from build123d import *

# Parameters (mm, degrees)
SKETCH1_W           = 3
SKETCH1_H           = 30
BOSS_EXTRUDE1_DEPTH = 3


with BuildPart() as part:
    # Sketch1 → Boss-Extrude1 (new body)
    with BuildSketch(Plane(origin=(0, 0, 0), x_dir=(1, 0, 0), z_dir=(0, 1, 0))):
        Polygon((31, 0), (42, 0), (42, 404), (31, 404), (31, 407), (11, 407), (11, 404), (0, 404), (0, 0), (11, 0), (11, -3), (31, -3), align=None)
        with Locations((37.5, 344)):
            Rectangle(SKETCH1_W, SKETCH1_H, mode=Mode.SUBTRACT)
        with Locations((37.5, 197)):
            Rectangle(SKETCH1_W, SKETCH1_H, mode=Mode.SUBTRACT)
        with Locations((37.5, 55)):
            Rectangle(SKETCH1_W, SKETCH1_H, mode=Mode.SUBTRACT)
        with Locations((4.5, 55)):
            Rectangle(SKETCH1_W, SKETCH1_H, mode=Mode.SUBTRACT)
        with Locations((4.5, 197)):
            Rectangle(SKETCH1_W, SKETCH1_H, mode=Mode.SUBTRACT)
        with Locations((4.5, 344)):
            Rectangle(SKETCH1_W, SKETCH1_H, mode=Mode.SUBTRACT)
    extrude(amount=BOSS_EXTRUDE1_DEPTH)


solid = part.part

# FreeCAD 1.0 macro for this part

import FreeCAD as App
import Part
import Sketcher

V = App.Vector
Q = App.Units.Quantity

doc = App.newDocument("Part")
params = doc.addObject("Spreadsheet::Sheet", "Params")
for row, (alias, value) in enumerate([
    ("sketch1_width", "11 mm"),
    ("sketch1_width2", "20 mm"),
    ("sketch1_width3", "3 mm"),
    ("sketch1_height", "404 mm"),
    ("sketch1_height2", "30 mm"),
    ("pad1_length", "3 mm"),
], start=1):
    params.set(f"A{row}", alias)
    params.set(f"B{row}", "=" + value)
    params.setAlias(f"B{row}", alias)

body = doc.addObject("PartDesign::Body", "Body")

sketch1 = doc.addObject("Sketcher::SketchObject", "Sketch")
body.addObject(sketch1)
sketch1.AttachmentSupport = (doc.XZ_Plane, [""])
sketch1.MapMode = "FlatFace"
sketch1.addGeometry(Part.LineSegment(V(31, 0, 0), V(42, 0, 0)), False)
sketch1.addGeometry(Part.LineSegment(V(42, 0, 0), V(42, -404, 0)), False)
sketch1.addGeometry(Part.LineSegment(V(42, -404, 0), V(31, -404, 0)), False)
sketch1.addGeometry(Part.LineSegment(V(31, -404, 0), V(31, -407, 0)), False)
sketch1.addGeometry(Part.LineSegment(V(31, -407, 0), V(11, -407, 0)), False)
sketch1.addGeometry(Part.LineSegment(V(11, -407, 0), V(11, -404, 0)), False)
sketch1.addGeometry(Part.LineSegment(V(11, -404, 0), V(0, -404, 0)), False)
sketch1.addGeometry(Part.LineSegment(V(0, -404, 0), V(0, 0, 0)), False)
sketch1.addGeometry(Part.LineSegment(V(0, 0, 0), V(11, 0, 0)), False)
sketch1.addGeometry(Part.LineSegment(V(11, 0, 0), V(11, 3, 0)), False)
sketch1.addGeometry(Part.LineSegment(V(11, 3, 0), V(31, 3, 0)), False)
sketch1.addGeometry(Part.LineSegment(V(31, 3, 0), V(31, 0, 0)), False)
sketch1.addGeometry(Part.LineSegment(V(6, -40, 0), V(3, -40, 0)), False)
sketch1.addGeometry(Part.LineSegment(V(3, -40, 0), V(3, -70, 0)), False)
sketch1.addGeometry(Part.LineSegment(V(3, -70, 0), V(6, -70, 0)), False)
sketch1.addGeometry(Part.LineSegment(V(6, -70, 0), V(6, -40, 0)), False)
sketch1.addGeometry(Part.LineSegment(V(6, -182, 0), V(3, -182, 0)), False)
sketch1.addGeometry(Part.LineSegment(V(3, -182, 0), V(3, -212, 0)), False)
sketch1.addGeometry(Part.LineSegment(V(3, -212, 0), V(6, -212, 0)), False)
sketch1.addGeometry(Part.LineSegment(V(6, -212, 0), V(6, -182, 0)), False)
sketch1.addGeometry(Part.LineSegment(V(39, -40, 0), V(36, -40, 0)), False)
sketch1.addGeometry(Part.LineSegment(V(36, -40, 0), V(36, -70, 0)), False)
sketch1.addGeometry(Part.LineSegment(V(36, -70, 0), V(39, -70, 0)), False)
sketch1.addGeometry(Part.LineSegment(V(39, -70, 0), V(39, -40, 0)), False)
sketch1.addGeometry(Part.LineSegment(V(39, -182, 0), V(36, -182, 0)), False)
sketch1.addGeometry(Part.LineSegment(V(36, -182, 0), V(36, -212, 0)), False)
sketch1.addGeometry(Part.LineSegment(V(36, -212, 0), V(39, -212, 0)), False)
sketch1.addGeometry(Part.LineSegment(V(39, -212, 0), V(39, -182, 0)), False)
sketch1.addGeometry(Part.LineSegment(V(6, -329, 0), V(3, -329, 0)), False)
sketch1.addGeometry(Part.LineSegment(V(3, -329, 0), V(3, -359, 0)), False)
sketch1.addGeometry(Part.LineSegment(V(3, -359, 0), V(6, -359, 0)), False)
sketch1.addGeometry(Part.LineSegment(V(6, -359, 0), V(6, -329, 0)), False)
sketch1.addGeometry(Part.LineSegment(V(39, -329, 0), V(36, -329, 0)), False)
sketch1.addGeometry(Part.LineSegment(V(36, -329, 0), V(36, -359, 0)), False)
sketch1.addGeometry(Part.LineSegment(V(36, -359, 0), V(39, -359, 0)), False)
sketch1.addGeometry(Part.LineSegment(V(39, -359, 0), V(39, -329, 0)), False)
sketch1.addConstraint(Sketcher.Constraint("Coincident", 0, 2, 1, 1))
sketch1.addConstraint(Sketcher.Constraint("Coincident", 1, 2, 2, 1))
sketch1.addConstraint(Sketcher.Constraint("Coincident", 2, 2, 3, 1))
sketch1.addConstraint(Sketcher.Constraint("Coincident", 3, 2, 4, 1))
sketch1.addConstraint(Sketcher.Constraint("Coincident", 4, 2, 5, 1))
sketch1.addConstraint(Sketcher.Constraint("Coincident", 5, 2, 6, 1))
sketch1.addConstraint(Sketcher.Constraint("Coincident", 6, 2, 7, 1))
sketch1.addConstraint(Sketcher.Constraint("Coincident", 7, 2, 8, 1))
sketch1.addConstraint(Sketcher.Constraint("Coincident", 8, 2, 9, 1))
sketch1.addConstraint(Sketcher.Constraint("Coincident", 9, 2, 10, 1))
sketch1.addConstraint(Sketcher.Constraint("Coincident", 10, 2, 11, 1))
sketch1.addConstraint(Sketcher.Constraint("Coincident", 11, 2, 0, 1))
sketch1.addConstraint(Sketcher.Constraint("Coincident", 12, 2, 13, 1))
sketch1.addConstraint(Sketcher.Constraint("Coincident", 13, 2, 14, 1))
sketch1.addConstraint(Sketcher.Constraint("Coincident", 14, 2, 15, 1))
sketch1.addConstraint(Sketcher.Constraint("Coincident", 15, 2, 12, 1))
sketch1.addConstraint(Sketcher.Constraint("Coincident", 16, 2, 17, 1))
sketch1.addConstraint(Sketcher.Constraint("Coincident", 17, 2, 18, 1))
sketch1.addConstraint(Sketcher.Constraint("Coincident", 18, 2, 19, 1))
sketch1.addConstraint(Sketcher.Constraint("Coincident", 19, 2, 16, 1))
sketch1.addConstraint(Sketcher.Constraint("Coincident", 20, 2, 21, 1))
sketch1.addConstraint(Sketcher.Constraint("Coincident", 21, 2, 22, 1))
sketch1.addConstraint(Sketcher.Constraint("Coincident", 22, 2, 23, 1))
sketch1.addConstraint(Sketcher.Constraint("Coincident", 23, 2, 20, 1))
sketch1.addConstraint(Sketcher.Constraint("Coincident", 24, 2, 25, 1))
sketch1.addConstraint(Sketcher.Constraint("Coincident", 25, 2, 26, 1))
sketch1.addConstraint(Sketcher.Constraint("Coincident", 26, 2, 27, 1))
sketch1.addConstraint(Sketcher.Constraint("Coincident", 27, 2, 24, 1))
sketch1.addConstraint(Sketcher.Constraint("Coincident", 28, 2, 29, 1))
sketch1.addConstraint(Sketcher.Constraint("Coincident", 29, 2, 30, 1))
sketch1.addConstraint(Sketcher.Constraint("Coincident", 30, 2, 31, 1))
sketch1.addConstraint(Sketcher.Constraint("Coincident", 31, 2, 28, 1))
sketch1.addConstraint(Sketcher.Constraint("Coincident", 32, 2, 33, 1))
sketch1.addConstraint(Sketcher.Constraint("Coincident", 33, 2, 34, 1))
sketch1.addConstraint(Sketcher.Constraint("Coincident", 34, 2, 35, 1))
sketch1.addConstraint(Sketcher.Constraint("Coincident", 35, 2, 32, 1))
sketch1.addConstraint(Sketcher.Constraint("Horizontal", 0))
sketch1.addConstraint(Sketcher.Constraint("Vertical", 1))
sketch1.addConstraint(Sketcher.Constraint("Horizontal", 2))
sketch1.addConstraint(Sketcher.Constraint("Vertical", 3))
sketch1.addConstraint(Sketcher.Constraint("Horizontal", 4))
sketch1.addConstraint(Sketcher.Constraint("Vertical", 5))
sketch1.addConstraint(Sketcher.Constraint("Horizontal", 6))
sketch1.addConstraint(Sketcher.Constraint("Vertical", 7))
sketch1.addConstraint(Sketcher.Constraint("Horizontal", 8))
sketch1.addConstraint(Sketcher.Constraint("Vertical", 9))
sketch1.addConstraint(Sketcher.Constraint("Horizontal", 10))
sketch1.addConstraint(Sketcher.Constraint("Vertical", 11))
sketch1.addConstraint(Sketcher.Constraint("Horizontal", 12))
sketch1.addConstraint(Sketcher.Constraint("Vertical", 13))
sketch1.addConstraint(Sketcher.Constraint("Horizontal", 14))
sketch1.addConstraint(Sketcher.Constraint("Vertical", 15))
sketch1.addConstraint(Sketcher.Constraint("Horizontal", 16))
sketch1.addConstraint(Sketcher.Constraint("Vertical", 17))
sketch1.addConstraint(Sketcher.Constraint("Horizontal", 18))
sketch1.addConstraint(Sketcher.Constraint("Vertical", 19))
sketch1.addConstraint(Sketcher.Constraint("Horizontal", 20))
sketch1.addConstraint(Sketcher.Constraint("Vertical", 21))
sketch1.addConstraint(Sketcher.Constraint("Horizontal", 22))
sketch1.addConstraint(Sketcher.Constraint("Vertical", 23))
sketch1.addConstraint(Sketcher.Constraint("Horizontal", 24))
sketch1.addConstraint(Sketcher.Constraint("Vertical", 25))
sketch1.addConstraint(Sketcher.Constraint("Horizontal", 26))
sketch1.addConstraint(Sketcher.Constraint("Vertical", 27))
sketch1.addConstraint(Sketcher.Constraint("Horizontal", 28))
sketch1.addConstraint(Sketcher.Constraint("Vertical", 29))
sketch1.addConstraint(Sketcher.Constraint("Horizontal", 30))
sketch1.addConstraint(Sketcher.Constraint("Vertical", 31))
sketch1.addConstraint(Sketcher.Constraint("Horizontal", 32))
sketch1.addConstraint(Sketcher.Constraint("Vertical", 33))
sketch1.addConstraint(Sketcher.Constraint("Horizontal", 34))
sketch1.addConstraint(Sketcher.Constraint("Vertical", 35))
sketch1.addConstraint(Sketcher.Constraint("Coincident", 7, 2, -1, 1))
sketch1.addConstraint(Sketcher.Constraint("PointOnObject", 0, 2, -1))
sketch1.addConstraint(Sketcher.Constraint("Horizontal", 2, 2, 5, 2))
sketch1.addConstraint(Sketcher.Constraint("Horizontal", 15, 2, 20, 2))
sketch1.addConstraint(Sketcher.Constraint("Horizontal", 14, 2, 21, 2))
sketch1.addConstraint(Sketcher.Constraint("Horizontal", 19, 2, 24, 2))
sketch1.addConstraint(Sketcher.Constraint("Horizontal", 18, 2, 25, 2))
sketch1.addConstraint(Sketcher.Constraint("Horizontal", 31, 2, 32, 2))
sketch1.addConstraint(Sketcher.Constraint("Horizontal", 30, 2, 33, 2))
sketch1.addConstraint(Sketcher.Constraint("Vertical", 5, 2, 8, 2))
sketch1.addConstraint(Sketcher.Constraint("Vertical", 3, 2, 10, 2))
sketch1.addConstraint(Sketcher.Constraint("Vertical", 13, 2, 16, 2))
sketch1.addConstraint(Sketcher.Constraint("Vertical", 15, 2, 18, 2))
sketch1.addConstraint(Sketcher.Constraint("Vertical", 21, 2, 24, 2))
sketch1.addConstraint(Sketcher.Constraint("Vertical", 23, 2, 26, 2))
sketch1.addConstraint(Sketcher.Constraint("Vertical", 17, 2, 28, 2))
sketch1.addConstraint(Sketcher.Constraint("Vertical", 19, 2, 30, 2))
sketch1.addConstraint(Sketcher.Constraint("Vertical", 25, 2, 32, 2))
sketch1.addConstraint(Sketcher.Constraint("Vertical", 27, 2, 34, 2))
sketch1.addConstraint(Sketcher.Constraint("Equal", 2, 6))
sketch1.addConstraint(Sketcher.Constraint("Equal", 18, 20))
sketch1.addConstraint(Sketcher.Constraint("Equal", 34, 3))
sketch1.addConstraint(Sketcher.Constraint("Equal", 5, 9))
sketch1.addConstraint(Sketcher.Constraint("Equal", 15, 17))
sketch1.addConstraint(Sketcher.Constraint("Equal", 27, 29))
sketch1.addConstraint(Sketcher.Constraint("DistanceX", 0, 1, 0, 2, Q("11 mm")))
sketch1.addConstraint(Sketcher.Constraint("DistanceX", 4, 2, 4, 1, Q("20 mm")))
sketch1.addConstraint(Sketcher.Constraint("DistanceX", 12, 2, 12, 1, Q("3 mm")))
sketch1.addConstraint(Sketcher.Constraint("DistanceY", 1, 2, 1, 1, Q("404 mm")))
sketch1.addConstraint(Sketcher.Constraint("DistanceY", 13, 2, 13, 1, Q("30 mm")))
sketch1.addConstraint(Sketcher.Constraint("DistanceX", -1, 1, 12, 2, Q("3 mm")))
sketch1.addConstraint(Sketcher.Constraint("DistanceY", 12, 2, -1, 1, Q("40 mm")))
sketch1.addConstraint(Sketcher.Constraint("DistanceY", 16, 2, -1, 1, Q("182 mm")))
sketch1.addConstraint(Sketcher.Constraint("DistanceX", -1, 1, 20, 2, Q("36 mm")))
sketch1.addConstraint(Sketcher.Constraint("DistanceY", 28, 2, -1, 1, Q("329 mm")))
sketch1.setExpression("Constraints[97]", "Params.sketch1_width")
sketch1.setExpression("Constraints[98]", "Params.sketch1_width2")
sketch1.setExpression("Constraints[99]", "Params.sketch1_width3")
sketch1.setExpression("Constraints[100]", "Params.sketch1_height")
sketch1.setExpression("Constraints[101]", "Params.sketch1_height2")
pad1 = doc.addObject("PartDesign::Pad", "Pad")
body.addObject(pad1)
pad1.Profile = sketch1
pad1.setExpression("Length", "Params.pad1_length")
pad1.Reversed = True

doc.recompute()
